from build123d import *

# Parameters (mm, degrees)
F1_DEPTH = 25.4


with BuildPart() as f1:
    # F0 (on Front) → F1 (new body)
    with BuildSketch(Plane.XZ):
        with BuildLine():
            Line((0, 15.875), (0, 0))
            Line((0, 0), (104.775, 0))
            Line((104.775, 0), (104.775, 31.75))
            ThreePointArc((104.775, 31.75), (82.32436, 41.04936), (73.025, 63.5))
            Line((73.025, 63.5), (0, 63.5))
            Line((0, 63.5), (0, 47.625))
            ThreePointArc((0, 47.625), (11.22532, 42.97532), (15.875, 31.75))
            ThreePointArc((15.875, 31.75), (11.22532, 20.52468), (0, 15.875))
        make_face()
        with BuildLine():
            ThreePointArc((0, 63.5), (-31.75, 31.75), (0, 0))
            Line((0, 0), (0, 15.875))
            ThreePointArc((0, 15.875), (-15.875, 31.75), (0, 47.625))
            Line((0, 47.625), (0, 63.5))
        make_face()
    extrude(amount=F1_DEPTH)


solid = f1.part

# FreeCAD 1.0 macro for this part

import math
import FreeCAD as App
import Part
import Sketcher

V = App.Vector
Q = App.Units.Quantity

doc = App.newDocument("Part")
body = doc.addObject("PartDesign::Body", "Body")

# Sketch on XZ plane
sketch1 = body.newObject("Sketcher::SketchObject", "Sketch")
sketch1.AttachmentSupport = (doc.getObject("XZ_Plane"), [""])
sketch1.MapMode = "FlatFace"
sketch1.addGeometry(Part.LineSegment(V(0, 0, 0), V(105, 0, 0)), False)
sketch1.addGeometry(Part.LineSegment(V(105, 0, 0), V(105, 32, 0)), False)
sketch1.addGeometry(Part.ArcOfCircle(Part.Circle(V(105, 64, 0), V(0, 0, 1), 32), math.radians(-180), math.radians(-90)), False)
sketch1.addGeometry(Part.LineSegment(V(73, 64, 0), V(0, 64, 0)), False)
sketch1.addGeometry(Part.ArcOfCircle(Part.Circle(V(0, 32, 0), V(0, 0, 1), 32), math.radians(90), math.radians(270)), False)
sketch1.addGeometry(Part.ArcOfCircle(Part.Circle(V(0, 32, 0), V(0, 0, 1), 16), math.radians(0), math.radians(90)), False)
sketch1.addGeometry(Part.ArcOfCircle(Part.Circle(V(0, 32, 0), V(0, 0, 1), 16), math.radians(-90), math.radians(0)), False)
sketch1.addGeometry(Part.ArcOfCircle(Part.Circle(V(0, 32, 0), V(0, 0, 1), 16), math.radians(90), math.radians(270)), False)
sketch1.addConstraint(Sketcher.Constraint("Coincident", 0, 2, 1, 1))
sketch1.addConstraint(Sketcher.Constraint("Coincident", 1, 2, 2, 2))
sketch1.addConstraint(Sketcher.Constraint("Coincident", 2, 1, 3, 1))
sketch1.addConstraint(Sketcher.Constraint("Tangent", 3, 2, 4, 1))
sketch1.addConstraint(Sketcher.Constraint("Tangent", 4, 2, 0, 1))
sketch1.addConstraint(Sketcher.Constraint("Tangent", 5, 1, 6, 2))
sketch1.addConstraint(Sketcher.Constraint("Tangent", 6, 1, 7, 2))
sketch1.addConstraint(Sketcher.Constraint("Tangent", 7, 1, 5, 2))
sketch1.addConstraint(Sketcher.Constraint("Horizontal", 0))
sketch1.addConstraint(Sketcher.Constraint("Vertical", 1))
sketch1.addConstraint(Sketcher.Constraint("Horizontal", 3))
sketch1.addConstraint(Sketcher.Constraint("Coincident", 4, 2, -1, 1))
sketch1.addConstraint(Sketcher.Constraint("Coincident", 5, 3, 4, 3))
sketch1.addConstraint(Sketcher.Constraint("Equal", 2, 4))
sketch1.addConstraint(Sketcher.Constraint("PointOnObject", 6, 1, -2))
sketch1.addConstraint(Sketcher.Constraint("PointOnObject", 7, 1, -2))
sketch1.addConstraint(Sketcher.Constraint("Horizontal", 7, 3, 1, 2))
sketch1.addConstraint(Sketcher.Constraint("Horizontal", 1, 2, 5, 1))
sketch1.addConstraint(Sketcher.Constraint("Vertical", 2, 3, 0, 2))
sketch1.addConstraint(Sketcher.Constraint("Radius", 2, Q("1.25 in")))
sketch1.addConstraint(Sketcher.Constraint("Radius", 5, Q("0.625 in")))
sketch1.addConstraint(Sketcher.Constraint("DistanceX", 0, 1, 0, 2, Q("4.125 in")))
pad1 = body.newObject("PartDesign::Pad", "Pad")
pad1.Profile = sketch1
pad1.Length = Q("1 in")

doc.recompute()
